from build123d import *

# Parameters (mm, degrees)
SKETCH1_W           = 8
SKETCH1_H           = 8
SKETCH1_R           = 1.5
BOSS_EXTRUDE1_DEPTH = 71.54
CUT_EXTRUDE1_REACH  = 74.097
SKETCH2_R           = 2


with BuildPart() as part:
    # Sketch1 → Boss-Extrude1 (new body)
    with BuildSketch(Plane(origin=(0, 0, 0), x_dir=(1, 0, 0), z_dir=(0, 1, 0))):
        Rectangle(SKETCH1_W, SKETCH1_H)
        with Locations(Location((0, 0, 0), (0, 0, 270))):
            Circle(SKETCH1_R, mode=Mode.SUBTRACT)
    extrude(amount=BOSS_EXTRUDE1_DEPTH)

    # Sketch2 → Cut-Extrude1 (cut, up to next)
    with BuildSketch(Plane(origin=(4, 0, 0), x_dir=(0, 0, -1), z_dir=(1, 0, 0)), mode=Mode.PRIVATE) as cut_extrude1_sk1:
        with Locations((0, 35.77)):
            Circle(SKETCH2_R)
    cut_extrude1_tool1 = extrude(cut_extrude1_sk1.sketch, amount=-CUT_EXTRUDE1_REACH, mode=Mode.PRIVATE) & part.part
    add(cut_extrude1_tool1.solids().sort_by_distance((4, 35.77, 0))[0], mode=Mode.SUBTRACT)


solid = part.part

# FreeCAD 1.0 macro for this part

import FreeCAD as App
import Part
import Sketcher
Q = App.Units.Quantity

doc = App.newDocument("Part")
body = doc.addObject("PartDesign::Body", "Body")

# Sketch on XZ plane
sketch1 = body.newObject("Sketcher::SketchObject", "Sketch")
sketch1.AttachmentSupport = (doc.getObject("XZ_Plane"), [""])
sketch1.MapMode = "FlatFace"
sketch1.addGeometry([
    Part.LineSegment(App.Vector(-4, -4, 0), App.Vector(-4, 4, 0)),  # 0
    Part.LineSegment(App.Vector(-4, 4, 0), App.Vector(4, 4, 0)),  # 1
    Part.LineSegment(App.Vector(4, 4, 0), App.Vector(4, -4, 0)),  # 2
    Part.LineSegment(App.Vector(4, -4, 0), App.Vector(-4, -4, 0)),  # 3
    Part.Circle(App.Vector(0, 0, 0), App.Vector(0, 0, 1), 1.5),  # 4
], False)
sketch1.addConstraint([
    Sketcher.Constraint("Coincident", 0, 2, 1, 1),
    Sketcher.Constraint("Coincident", 1, 2, 2, 1),
    Sketcher.Constraint("Coincident", 2, 2, 3, 1),
    Sketcher.Constraint("Coincident", 3, 2, 0, 1),
    Sketcher.Constraint("Vertical", 0),
    Sketcher.Constraint("Horizontal", 1),
    Sketcher.Constraint("Vertical", 2),
    Sketcher.Constraint("Horizontal", 3),
    Sketcher.Constraint("Coincident", 4, 3, -1, 1),
    Sketcher.Constraint("Symmetric", 0, 2, 2, 2, -1, 1),
    Sketcher.Constraint("Equal", 3, 0),
    Sketcher.Constraint("Diameter", 4, Q("3 mm")),
    Sketcher.Constraint("DistanceX", 1, 1, 1, 2, Q("8 mm")),
])
pad1 = body.newObject("PartDesign::Pad", "Pad")
pad1.Profile = sketch1
pad1.Length = 71.54
pad1.Reversed = True

# Sketch on YZ plane
sketch2 = body.newObject("Sketcher::SketchObject", "Sketch001")
sketch2.AttachmentSupport = (doc.getObject("YZ_Plane"), [""])
sketch2.MapMode = "FlatFace"
sketch2.AttachmentOffset = App.Placement(App.Vector(0, 0, 4), App.Rotation())
sketch2.addGeometry(Part.Circle(App.Vector(35.77, 0, 0), App.Vector(0, 0, 1), 2), False)
sketch2.addConstraint([
    Sketcher.Constraint("PointOnObject", 0, 3, -1),
    Sketcher.Constraint("Diameter", 0, Q("4 mm")),
    Sketcher.Constraint("DistanceX", -1, 1, 0, 3, Q("35.77 mm")),
])
pocket1 = body.newObject("PartDesign::Pocket", "Pocket")
pocket1.Profile = sketch2
pocket1.Length = 8

doc.recompute()
